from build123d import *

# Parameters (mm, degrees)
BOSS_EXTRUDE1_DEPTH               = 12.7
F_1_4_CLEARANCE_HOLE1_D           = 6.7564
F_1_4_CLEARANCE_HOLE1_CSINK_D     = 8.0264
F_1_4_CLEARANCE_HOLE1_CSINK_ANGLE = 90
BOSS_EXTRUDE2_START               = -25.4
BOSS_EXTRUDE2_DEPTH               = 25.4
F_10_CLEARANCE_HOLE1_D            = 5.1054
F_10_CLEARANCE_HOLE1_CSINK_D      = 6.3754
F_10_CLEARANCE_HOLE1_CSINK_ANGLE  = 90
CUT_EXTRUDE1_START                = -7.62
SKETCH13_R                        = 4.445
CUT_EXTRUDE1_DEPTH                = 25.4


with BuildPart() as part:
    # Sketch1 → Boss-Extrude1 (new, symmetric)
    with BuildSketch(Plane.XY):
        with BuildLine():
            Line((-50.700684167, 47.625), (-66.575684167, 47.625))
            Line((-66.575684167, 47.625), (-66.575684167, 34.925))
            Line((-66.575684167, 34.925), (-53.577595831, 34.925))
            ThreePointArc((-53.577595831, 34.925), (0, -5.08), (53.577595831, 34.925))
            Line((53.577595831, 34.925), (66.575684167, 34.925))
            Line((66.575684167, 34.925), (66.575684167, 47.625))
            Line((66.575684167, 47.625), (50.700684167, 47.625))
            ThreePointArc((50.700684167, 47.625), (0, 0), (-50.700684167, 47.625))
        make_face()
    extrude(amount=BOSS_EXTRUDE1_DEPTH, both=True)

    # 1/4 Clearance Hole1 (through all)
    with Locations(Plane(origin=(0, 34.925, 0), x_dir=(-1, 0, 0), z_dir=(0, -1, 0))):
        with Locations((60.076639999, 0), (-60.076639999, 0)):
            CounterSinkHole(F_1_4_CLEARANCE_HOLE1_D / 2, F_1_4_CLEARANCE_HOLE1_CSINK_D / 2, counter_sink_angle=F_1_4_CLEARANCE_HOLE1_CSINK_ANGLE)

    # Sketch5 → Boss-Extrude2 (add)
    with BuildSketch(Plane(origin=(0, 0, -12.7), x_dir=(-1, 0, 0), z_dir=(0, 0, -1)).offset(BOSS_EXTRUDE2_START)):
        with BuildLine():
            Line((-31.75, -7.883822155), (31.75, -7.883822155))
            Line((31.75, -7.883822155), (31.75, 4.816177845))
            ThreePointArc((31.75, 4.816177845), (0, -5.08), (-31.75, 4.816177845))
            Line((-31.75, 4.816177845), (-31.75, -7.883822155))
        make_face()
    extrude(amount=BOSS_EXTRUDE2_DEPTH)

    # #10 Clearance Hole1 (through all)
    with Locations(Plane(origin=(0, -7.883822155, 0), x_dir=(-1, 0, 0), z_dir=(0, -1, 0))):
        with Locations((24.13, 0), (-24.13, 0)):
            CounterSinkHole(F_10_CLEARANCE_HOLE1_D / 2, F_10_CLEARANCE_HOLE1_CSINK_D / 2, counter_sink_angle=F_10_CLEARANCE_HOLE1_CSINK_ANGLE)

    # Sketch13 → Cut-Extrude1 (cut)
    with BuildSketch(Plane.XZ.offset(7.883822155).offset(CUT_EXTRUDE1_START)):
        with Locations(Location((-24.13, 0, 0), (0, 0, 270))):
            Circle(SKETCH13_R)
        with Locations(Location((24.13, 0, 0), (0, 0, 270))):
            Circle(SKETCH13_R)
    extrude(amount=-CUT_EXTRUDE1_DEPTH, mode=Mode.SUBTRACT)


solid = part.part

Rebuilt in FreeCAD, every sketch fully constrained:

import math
import FreeCAD as App
import Part
import Sketcher
from FreeCAD import Vector
Q = App.Units.Quantity

doc = App.newDocument("Part")
params = doc.addObject("Spreadsheet::Sheet", "Params")
for row, (alias, value) in enumerate([
    ("sketch1_radius", "2 in"),
    ("sketch1_radius2", "2.2 in"),
    ("sketch1_height", "0.5 in"),
    ("sketch1_width", "0.625 in"),
    ("pad1_length", "1 in"),
    ("sketch2_diameter", "0.266 in"),
    ("hole_diameter", "0.266 in"),
    ("hole_csink_diameter", "0.316 in"),
    ("sketch3_radius", "2.2 in"),
    ("sketch3_width", "2.5 in"),
    ("sketch3_height", "0.5 in"),
    ("pad2_length", "1 in"),
    ("sketch4_diameter", "0.201 in"),
    ("hole2_diameter", "0.201 in"),
    ("hole2_csink_diameter", "0.251 in"),
    ("sketch5_diameter", "0.35 in"),
    ("pocket1_length", "1 in"),
], start=1):
    params.set(f"A{row}", alias)
    params.set(f"B{row}", "=" + value)
    params.setAlias(f"B{row}", alias)

body = doc.addObject("PartDesign::Body", "Body")

# Sketch on XY plane
sketch1 = doc.addObject("Sketcher::SketchObject", "Sketch")
body.addObject(sketch1)
sketch1.AttachmentSupport = (doc.XY_Plane, [""])
sketch1.MapMode = "FlatFace"
sketch1.addGeometry(Part.LineSegment(Vector(-51, 48, 0), Vector(-67, 48, 0)), False)
sketch1.addGeometry(Part.LineSegment(Vector(-67, 48, 0), Vector(-67, 35, 0)), False)
sketch1.addGeometry(Part.LineSegment(Vector(-67, 35, 0), Vector(-54, 35, 0)), False)
sketch1.addGeometry(Part.ArcOfCircle(Part.Circle(Vector(0, 51, 0), Vector(0, 0, 1), 56), math.radians(-163), math.radians(-17)), False)
sketch1.addGeometry(Part.LineSegment(Vector(54, 35, 0), Vector(67, 35, 0)), False)
sketch1.addGeometry(Part.LineSegment(Vector(67, 35, 0), Vector(67, 48, 0)), False)
sketch1.addGeometry(Part.LineSegment(Vector(67, 48, 0), Vector(51, 48, 0)), False)
sketch1.addGeometry(Part.ArcOfCircle(Part.Circle(Vector(0, 51, 0), Vector(0, 0, 1), 51), math.radians(-176), math.radians(-4)), False)
sketch1.addConstraint(Sketcher.Constraint("Coincident", 0, 2, 1, 1))
sketch1.addConstraint(Sketcher.Constraint("Coincident", 1, 2, 2, 1))
sketch1.addConstraint(Sketcher.Constraint("Coincident", 2, 2, 3, 1))
sketch1.addConstraint(Sketcher.Constraint("Coincident", 3, 2, 4, 1))
sketch1.addConstraint(Sketcher.Constraint("Coincident", 4, 2, 5, 1))
sketch1.addConstraint(Sketcher.Constraint("Coincident", 5, 2, 6, 1))
sketch1.addConstraint(Sketcher.Constraint("Coincident", 6, 2, 7, 2))
sketch1.addConstraint(Sketcher.Constraint("Coincident", 7, 1, 0, 1))
sketch1.addConstraint(Sketcher.Constraint("Horizontal", 0))
sketch1.addConstraint(Sketcher.Constraint("Vertical", 1))
sketch1.addConstraint(Sketcher.Constraint("Horizontal", 2))
sketch1.addConstraint(Sketcher.Constraint("Horizontal", 4))
sketch1.addConstraint(Sketcher.Constraint("Vertical", 5))
sketch1.addConstraint(Sketcher.Constraint("Horizontal", 6))
sketch1.addConstraint(Sketcher.Constraint("Coincident", 7, 3, 3, 3))
sketch1.addConstraint(Sketcher.Constraint("Symmetric", 2, 2, 3, 2, -2))
sketch1.addConstraint(Sketcher.Constraint("Symmetric", 0, 2, 5, 2, -2))
sketch1.addConstraint(Sketcher.Constraint("Radius", 7, Q("2 in")))
sketch1.addConstraint(Sketcher.Constraint("Radius", 3, Q("2.2 in")))
sketch1.addConstraint(Sketcher.Constraint("DistanceY", 1, 2, 1, 1, Q("0.5 in")))
sketch1.addConstraint(Sketcher.Constraint("DistanceY", -1, 1, 3, 3, Q("2 in")))
sketch1.addConstraint(Sketcher.Constraint("DistanceX", 0, 2, 0, 1, Q("0.625 in")))
sketch1.addConstraint(Sketcher.Constraint("DistanceY", -1, 1, 0, 2, Q("1.875 in")))
sketch1.setExpression("Constraints[17]", "Params.sketch1_radius")
sketch1.setExpression("Constraints[18]", "Params.sketch1_radius2")
sketch1.setExpression("Constraints[19]", "Params.sketch1_height")
sketch1.setExpression("Constraints[21]", "Params.sketch1_width")
pad1 = doc.addObject("PartDesign::Pad", "Pad")
body.addObject(pad1)
pad1.Profile = sketch1
pad1.setExpression("Length", "Params.pad1_length")
pad1.Midplane = True

# Sketch on XZ plane
sketch2 = doc.addObject("Sketcher::SketchObject", "Sketch001")
body.addObject(sketch2)
sketch2.AttachmentSupport = (doc.XZ_Plane, [""])
sketch2.MapMode = "FlatFace"
sketch2.AttachmentOffset = App.Placement(Vector(0, 0, -1.375 * 25.4), App.Rotation())
sketch2.addGeometry(Part.Circle(Vector(-60.1, 0, 0), Vector(0, 0, 1), 3.4), False)
sketch2.addGeometry(Part.Circle(Vector(60.1, 0, 0), Vector(0, 0, 1), 3.4), False)
sketch2.addConstraint(Sketcher.Constraint("Equal", 0, 1))
sketch2.addConstraint(Sketcher.Constraint("Symmetric", 0, 3, 1, 3, -1, 1))
sketch2.addConstraint(Sketcher.Constraint("PointOnObject", 0, 3, -1))
sketch2.addConstraint(Sketcher.Constraint("Diameter", 0, Q("0.266 in")))
sketch2.addConstraint(Sketcher.Constraint("DistanceX", 0, 3, -1, 1, Q("60.07664 mm")))
sketch2.setExpression("Constraints[3]", "Params.sketch2_diameter")
doc.recompute()
hole = doc.addObject("PartDesign::Hole", "Hole")
body.addObject(hole)
hole.Profile = sketch2
hole.ThreadType = "None"
hole.setExpression("Diameter", "Params.hole_diameter")
hole.DepthType = "ThroughAll"
hole.HoleCutType = "Countersink"
hole.setExpression("HoleCutDiameter", "Params.hole_csink_diameter")
hole.HoleCutCountersinkAngle = 90

# Sketch on XY plane
sketch3 = doc.addObject("Sketcher::SketchObject", "Sketch002")
body.addObject(sketch3)
sketch3.AttachmentSupport = (doc.XY_Plane, [""])
sketch3.MapMode = "FlatFace"
sketch3.AttachmentOffset = App.Placement(Vector(0, 0, 0.5 * 25.4), App.Rotation())
sketch3.addGeometry(Part.LineSegment(Vector(32, -8, 0), Vector(-32, -8, 0)), False)
sketch3.addGeometry(Part.LineSegment(Vector(-32, -8, 0), Vector(-32, 5, 0)), False)
sketch3.addGeometry(Part.ArcOfCircle(Part.Circle(Vector(0, 51, 0), Vector(0, 0, 1), 56), math.radians(-125), math.radians(-55)), False)
sketch3.addGeometry(Part.LineSegment(Vector(32, 5, 0), Vector(32, -8, 0)), False)
sketch3.addConstraint(Sketcher.Constraint("Coincident", 0, 2, 1, 1))
sketch3.addConstraint(Sketcher.Constraint("Coincident", 1, 2, 2, 1))
sketch3.addConstraint(Sketcher.Constraint("Coincident", 2, 2, 3, 1))
sketch3.addConstraint(Sketcher.Constraint("Coincident", 3, 2, 0, 1))
sketch3.addConstraint(Sketcher.Constraint("Horizontal", 0))
sketch3.addConstraint(Sketcher.Constraint("Vertical", 1))
sketch3.addConstraint(Sketcher.Constraint("Vertical", 3))
sketch3.addConstraint(Sketcher.Constraint("Symmetric", 1, 2, 2, 2, -2))
sketch3.addConstraint(Sketcher.Constraint("Radius", 2, Q("2.2 in")))
sketch3.addConstraint(Sketcher.Constraint("DistanceX", 0, 2, 0, 1, Q("2.5 in")))
sketch3.addConstraint(Sketcher.Constraint("DistanceY", 1, 1, 1, 2, Q("0.5 in")))
sketch3.addConstraint(Sketcher.Constraint("DistanceY", -1, 1, 2, 3, Q("2 in")))
sketch3.setExpression("Constraints[8]", "Params.sketch3_radius")
sketch3.setExpression("Constraints[9]", "Params.sketch3_width")
sketch3.setExpression("Constraints[10]", "Params.sketch3_height")
pad2 = doc.addObject("PartDesign::Pad", "Pad001")
body.addObject(pad2)
pad2.Profile = sketch3
pad2.setExpression("Length", "Params.pad2_length")
pad2.Reversed = True

# Sketch on XZ plane
sketch4 = doc.addObject("Sketcher::SketchObject", "Sketch003")
body.addObject(sketch4)
sketch4.AttachmentSupport = (doc.XZ_Plane, [""])
sketch4.MapMode = "FlatFace"
sketch4.AttachmentOffset = App.Placement(Vector(0, 0, 7.883822), App.Rotation())
sketch4.addGeometry(Part.Circle(Vector(-24.1, 0, 0), Vector(0, 0, 1), 2.6), False)
sketch4.addGeometry(Part.Circle(Vector(24.1, 0, 0), Vector(0, 0, 1), 2.6), False)
sketch4.addConstraint(Sketcher.Constraint("Equal", 0, 1))
sketch4.addConstraint(Sketcher.Constraint("Symmetric", 0, 3, 1, 3, -1, 1))
sketch4.addConstraint(Sketcher.Constraint("PointOnObject", 0, 3, -1))
sketch4.addConstraint(Sketcher.Constraint("Diameter", 0, Q("0.201 in")))
sketch4.addConstraint(Sketcher.Constraint("DistanceX", 0, 3, 1, 3, Q("1.9 in")))
sketch4.setExpression("Constraints[3]", "Params.sketch4_diameter")
doc.recompute()
hole2 = doc.addObject("PartDesign::Hole", "Hole001")
body.addObject(hole2)
hole2.Profile = sketch4
hole2.ThreadType = "None"
hole2.setExpression("Diameter", "Params.hole2_diameter")
hole2.DepthType = "ThroughAll"
hole2.HoleCutType = "Countersink"
hole2.setExpression("HoleCutDiameter", "Params.hole2_csink_diameter")
hole2.HoleCutCountersinkAngle = 90

# Sketch on XZ plane
sketch5 = doc.addObject("Sketcher::SketchObject", "Sketch004")
body.addObject(sketch5)
sketch5.AttachmentSupport = (doc.XZ_Plane, [""])
sketch5.MapMode = "FlatFace"
sketch5.AttachmentOffset = App.Placement(Vector(0, 0, 0.263822), App.Rotation())
sketch5.addGeometry(Part.Circle(Vector(-24.1, 0, 0), Vector(0, 0, 1), 4.4), False)
sketch5.addGeometry(Part.Circle(Vector(24.1, 0, 0), Vector(0, 0, 1), 4.4), False)
sketch5.addConstraint(Sketcher.Constraint("Equal", 0, 1))
sketch5.addConstraint(Sketcher.Constraint("Symmetric", 0, 3, 1, 3, -1, 1))
sketch5.addConstraint(Sketcher.Constraint("PointOnObject", 0, 3, -1))
sketch5.addConstraint(Sketcher.Constraint("Diameter", 0, Q("0.35 in")))
sketch5.addConstraint(Sketcher.Constraint("DistanceX", 0, 3, 1, 3, Q("1.9 in")))
sketch5.setExpression("Constraints[3]", "Params.sketch5_diameter")
pocket1 = doc.addObject("PartDesign::Pocket", "Pocket")
body.addObject(pocket1)
pocket1.Profile = sketch5
pocket1.setExpression("Length", "Params.pocket1_length")

doc.recompute()
